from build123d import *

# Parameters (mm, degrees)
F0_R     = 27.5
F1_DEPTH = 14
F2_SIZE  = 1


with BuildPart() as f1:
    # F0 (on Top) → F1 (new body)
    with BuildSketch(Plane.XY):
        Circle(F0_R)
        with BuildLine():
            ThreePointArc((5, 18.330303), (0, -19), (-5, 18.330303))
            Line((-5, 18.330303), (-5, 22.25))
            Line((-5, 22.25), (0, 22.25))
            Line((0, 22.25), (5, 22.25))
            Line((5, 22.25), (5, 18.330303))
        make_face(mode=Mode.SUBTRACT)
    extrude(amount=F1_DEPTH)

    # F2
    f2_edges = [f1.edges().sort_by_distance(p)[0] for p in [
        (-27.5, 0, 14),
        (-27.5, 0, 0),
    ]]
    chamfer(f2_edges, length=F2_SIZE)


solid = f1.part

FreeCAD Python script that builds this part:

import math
import FreeCAD as App
import Part
import Sketcher


def edges_at(feature, points):
    """Names of the edges that pass closest to the given points."""
    edges = feature.Shape.Edges
    near = lambda p: min(range(len(edges)), key=lambda i: edges[i].distToShape(Part.Vertex(*p))[0])
    return sorted({f"Edge{near(p) + 1}" for p in points})

doc = App.newDocument("Part")
body = doc.addObject("PartDesign::Body", "Body")

sketch1 = body.newObject("Sketcher::SketchObject", "Sketch")
sketch1.AttachmentSupport = (doc.getObject("XY_Plane"), [""])
sketch1.MapMode = "FlatFace"
sketch1.addGeometry([
    Part.Circle(App.Vector(0, 0, 0), App.Vector(0, 0, 1), 27.5),
    Part.LineSegment(App.Vector(5, 22.2, 0), App.Vector(5, 18.3, 0)),
    Part.ArcOfCircle(Part.Circle(App.Vector(0, 0, 0), App.Vector(0, 0, 1), 19), math.radians(105), math.radians(435)),
    Part.LineSegment(App.Vector(-5, 18.3, 0), App.Vector(-5, 22.2, 0)),
    Part.LineSegment(App.Vector(-5, 22.2, 0), App.Vector(5, 22.2, 0)),
], False)
sketch1.addConstraint([
    Sketcher.Constraint("Coincident", 1, 2, 2, 2),
    Sketcher.Constraint("Coincident", 2, 1, 3, 1),
    Sketcher.Constraint("Coincident", 3, 2, 4, 1),
    Sketcher.Constraint("Coincident", 4, 2, 1, 1),
    Sketcher.Constraint("Vertical", 1),
    Sketcher.Constraint("Vertical", 3),
    Sketcher.Constraint("Horizontal", 4),
    Sketcher.Constraint("Coincident", 0, 3, -1, 1),
    Sketcher.Constraint("Coincident", 2, 3, -1, 1),
    Sketcher.Constraint("Horizontal", 1, 2, 2, 1),
    Sketcher.Constraint("Diameter", 0, 55.0),
    Sketcher.Constraint("Radius", 2, 19.0),
    Sketcher.Constraint("DistanceX", 4, 1, 4, 2, 10.0),
    Sketcher.Constraint("DistanceY", -1, 1, 3, 2, 22.25),
])
pad1 = body.newObject("PartDesign::Pad", "Pad")
pad1.Profile = sketch1
pad1.Length = 14
doc.recompute()

chamfer = body.newObject("PartDesign::Chamfer", "Chamfer")
chamfer.Base = (pad1, edges_at(pad1, [(-27.5, 0, 14), (-27.5, 0, 0)]))
chamfer.Size = 1

doc.recompute()
